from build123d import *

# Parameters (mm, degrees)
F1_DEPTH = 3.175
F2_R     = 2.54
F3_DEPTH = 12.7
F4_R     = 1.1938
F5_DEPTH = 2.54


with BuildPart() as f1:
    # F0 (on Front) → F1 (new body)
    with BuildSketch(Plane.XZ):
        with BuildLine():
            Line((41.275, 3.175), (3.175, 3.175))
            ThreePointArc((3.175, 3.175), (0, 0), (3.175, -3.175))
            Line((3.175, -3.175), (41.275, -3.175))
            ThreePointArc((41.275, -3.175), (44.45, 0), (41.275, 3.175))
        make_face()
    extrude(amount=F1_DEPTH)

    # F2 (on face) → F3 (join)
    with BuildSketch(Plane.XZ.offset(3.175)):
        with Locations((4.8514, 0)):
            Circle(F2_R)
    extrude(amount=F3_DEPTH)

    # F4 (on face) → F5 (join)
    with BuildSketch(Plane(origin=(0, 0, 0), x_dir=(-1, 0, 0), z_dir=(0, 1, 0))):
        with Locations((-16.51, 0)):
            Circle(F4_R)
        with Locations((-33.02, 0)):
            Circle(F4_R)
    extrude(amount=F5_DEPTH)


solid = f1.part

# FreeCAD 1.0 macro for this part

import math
import FreeCAD as App
import Part
import Sketcher
from FreeCAD import Vector
Q = App.Units.Quantity

doc = App.newDocument("Part")
body = doc.addObject("PartDesign::Body", "Body")

# Sketch on XZ plane
sketch1 = body.newObject("Sketcher::SketchObject", "Sketch")
sketch1.AttachmentSupport = (doc.getObject("XZ_Plane"), [""])
sketch1.MapMode = "FlatFace"
sketch1.addGeometry(Part.LineSegment(Vector(41.3, 3.2, 0), Vector(3.2, 3.2, 0)), False)
sketch1.addGeometry(Part.ArcOfCircle(Part.Circle(Vector(3.2, 0, 0), Vector(0, 0, 1), 3.2), math.radians(90), math.radians(270)), False)
sketch1.addGeometry(Part.LineSegment(Vector(3.2, -3.2, 0), Vector(41.3, -3.2, 0)), False)
sketch1.addGeometry(Part.ArcOfCircle(Part.Circle(Vector(41.3, 0, 0), Vector(0, 0, 1), 3.2), math.radians(-90), math.radians(90)), False)
sketch1.addConstraint(Sketcher.Constraint("Tangent", 0, 2, 1, 1))
sketch1.addConstraint(Sketcher.Constraint("Tangent", 1, 2, 2, 1))
sketch1.addConstraint(Sketcher.Constraint("Tangent", 2, 2, 3, 1))
sketch1.addConstraint(Sketcher.Constraint("Tangent", 3, 2, 0, 1))
sketch1.addConstraint(Sketcher.Constraint("Horizontal", 0))
sketch1.addConstraint(Sketcher.Constraint("Horizontal", 2))
sketch1.addConstraint(Sketcher.Constraint("PointOnObject", 1, 3, -1))
sketch1.addConstraint(Sketcher.Constraint("DistanceX", 0, 2, 0, 1, Q("1.5 in")))
sketch1.addConstraint(Sketcher.Constraint("Radius", 1, Q("0.125 in")))
sketch1.addConstraint(Sketcher.Constraint("DistanceX", -1, 1, 1, 3, Q("0.125 in")))
pad1 = body.newObject("PartDesign::Pad", "Pad")
pad1.Profile = sketch1
pad1.Length = Q("0.125 in")

# Sketch on XZ plane
sketch2 = body.newObject("Sketcher::SketchObject", "Sketch001")
sketch2.AttachmentSupport = (doc.getObject("XZ_Plane"), [""])
sketch2.MapMode = "FlatFace"
sketch2.AttachmentOffset = App.Placement(Vector(0, 0, 0.125 * 25.4), App.Rotation())
sketch2.addGeometry(Part.Circle(Vector(4.9, 0, 0), Vector(0, 0, 1), 2.5), False)
sketch2.addConstraint(Sketcher.Constraint("PointOnObject", 0, 3, -1))
sketch2.addConstraint(Sketcher.Constraint("Diameter", 0, Q("0.2 in")))
sketch2.addConstraint(Sketcher.Constraint("DistanceX", -1, 1, 0, 3, Q("0.191 in")))
pad2 = body.newObject("PartDesign::Pad", "Pad001")
pad2.Profile = sketch2
pad2.Length = Q("0.5 in")

# Sketch on XZ plane
sketch3 = body.newObject("Sketcher::SketchObject", "Sketch002")
sketch3.AttachmentSupport = (doc.getObject("XZ_Plane"), [""])
sketch3.MapMode = "FlatFace"
sketch3.addGeometry(Part.Circle(Vector(16.5, 0, 0), Vector(0, 0, 1), 1.2), False)
sketch3.addGeometry(Part.Circle(Vector(33, 0, 0), Vector(0, 0, 1), 1.2), False)
sketch3.addConstraint(Sketcher.Constraint("Equal", 0, 1))
sketch3.addConstraint(Sketcher.Constraint("PointOnObject", 0, 3, -1))
sketch3.addConstraint(Sketcher.Constraint("PointOnObject", 1, 3, -1))
sketch3.addConstraint(Sketcher.Constraint("Diameter", 0, Q("0.094 in")))
sketch3.addConstraint(Sketcher.Constraint("DistanceX", -1, 1, 1, 3, Q("1.3 in")))
sketch3.addConstraint(Sketcher.Constraint("DistanceX", -1, 1, 0, 3, Q("0.65 in")))
pad3 = body.newObject("PartDesign::Pad", "Pad002")
pad3.Profile = sketch3
pad3.Length = Q("0.1 in")
pad3.Reversed = True

doc.recompute()
